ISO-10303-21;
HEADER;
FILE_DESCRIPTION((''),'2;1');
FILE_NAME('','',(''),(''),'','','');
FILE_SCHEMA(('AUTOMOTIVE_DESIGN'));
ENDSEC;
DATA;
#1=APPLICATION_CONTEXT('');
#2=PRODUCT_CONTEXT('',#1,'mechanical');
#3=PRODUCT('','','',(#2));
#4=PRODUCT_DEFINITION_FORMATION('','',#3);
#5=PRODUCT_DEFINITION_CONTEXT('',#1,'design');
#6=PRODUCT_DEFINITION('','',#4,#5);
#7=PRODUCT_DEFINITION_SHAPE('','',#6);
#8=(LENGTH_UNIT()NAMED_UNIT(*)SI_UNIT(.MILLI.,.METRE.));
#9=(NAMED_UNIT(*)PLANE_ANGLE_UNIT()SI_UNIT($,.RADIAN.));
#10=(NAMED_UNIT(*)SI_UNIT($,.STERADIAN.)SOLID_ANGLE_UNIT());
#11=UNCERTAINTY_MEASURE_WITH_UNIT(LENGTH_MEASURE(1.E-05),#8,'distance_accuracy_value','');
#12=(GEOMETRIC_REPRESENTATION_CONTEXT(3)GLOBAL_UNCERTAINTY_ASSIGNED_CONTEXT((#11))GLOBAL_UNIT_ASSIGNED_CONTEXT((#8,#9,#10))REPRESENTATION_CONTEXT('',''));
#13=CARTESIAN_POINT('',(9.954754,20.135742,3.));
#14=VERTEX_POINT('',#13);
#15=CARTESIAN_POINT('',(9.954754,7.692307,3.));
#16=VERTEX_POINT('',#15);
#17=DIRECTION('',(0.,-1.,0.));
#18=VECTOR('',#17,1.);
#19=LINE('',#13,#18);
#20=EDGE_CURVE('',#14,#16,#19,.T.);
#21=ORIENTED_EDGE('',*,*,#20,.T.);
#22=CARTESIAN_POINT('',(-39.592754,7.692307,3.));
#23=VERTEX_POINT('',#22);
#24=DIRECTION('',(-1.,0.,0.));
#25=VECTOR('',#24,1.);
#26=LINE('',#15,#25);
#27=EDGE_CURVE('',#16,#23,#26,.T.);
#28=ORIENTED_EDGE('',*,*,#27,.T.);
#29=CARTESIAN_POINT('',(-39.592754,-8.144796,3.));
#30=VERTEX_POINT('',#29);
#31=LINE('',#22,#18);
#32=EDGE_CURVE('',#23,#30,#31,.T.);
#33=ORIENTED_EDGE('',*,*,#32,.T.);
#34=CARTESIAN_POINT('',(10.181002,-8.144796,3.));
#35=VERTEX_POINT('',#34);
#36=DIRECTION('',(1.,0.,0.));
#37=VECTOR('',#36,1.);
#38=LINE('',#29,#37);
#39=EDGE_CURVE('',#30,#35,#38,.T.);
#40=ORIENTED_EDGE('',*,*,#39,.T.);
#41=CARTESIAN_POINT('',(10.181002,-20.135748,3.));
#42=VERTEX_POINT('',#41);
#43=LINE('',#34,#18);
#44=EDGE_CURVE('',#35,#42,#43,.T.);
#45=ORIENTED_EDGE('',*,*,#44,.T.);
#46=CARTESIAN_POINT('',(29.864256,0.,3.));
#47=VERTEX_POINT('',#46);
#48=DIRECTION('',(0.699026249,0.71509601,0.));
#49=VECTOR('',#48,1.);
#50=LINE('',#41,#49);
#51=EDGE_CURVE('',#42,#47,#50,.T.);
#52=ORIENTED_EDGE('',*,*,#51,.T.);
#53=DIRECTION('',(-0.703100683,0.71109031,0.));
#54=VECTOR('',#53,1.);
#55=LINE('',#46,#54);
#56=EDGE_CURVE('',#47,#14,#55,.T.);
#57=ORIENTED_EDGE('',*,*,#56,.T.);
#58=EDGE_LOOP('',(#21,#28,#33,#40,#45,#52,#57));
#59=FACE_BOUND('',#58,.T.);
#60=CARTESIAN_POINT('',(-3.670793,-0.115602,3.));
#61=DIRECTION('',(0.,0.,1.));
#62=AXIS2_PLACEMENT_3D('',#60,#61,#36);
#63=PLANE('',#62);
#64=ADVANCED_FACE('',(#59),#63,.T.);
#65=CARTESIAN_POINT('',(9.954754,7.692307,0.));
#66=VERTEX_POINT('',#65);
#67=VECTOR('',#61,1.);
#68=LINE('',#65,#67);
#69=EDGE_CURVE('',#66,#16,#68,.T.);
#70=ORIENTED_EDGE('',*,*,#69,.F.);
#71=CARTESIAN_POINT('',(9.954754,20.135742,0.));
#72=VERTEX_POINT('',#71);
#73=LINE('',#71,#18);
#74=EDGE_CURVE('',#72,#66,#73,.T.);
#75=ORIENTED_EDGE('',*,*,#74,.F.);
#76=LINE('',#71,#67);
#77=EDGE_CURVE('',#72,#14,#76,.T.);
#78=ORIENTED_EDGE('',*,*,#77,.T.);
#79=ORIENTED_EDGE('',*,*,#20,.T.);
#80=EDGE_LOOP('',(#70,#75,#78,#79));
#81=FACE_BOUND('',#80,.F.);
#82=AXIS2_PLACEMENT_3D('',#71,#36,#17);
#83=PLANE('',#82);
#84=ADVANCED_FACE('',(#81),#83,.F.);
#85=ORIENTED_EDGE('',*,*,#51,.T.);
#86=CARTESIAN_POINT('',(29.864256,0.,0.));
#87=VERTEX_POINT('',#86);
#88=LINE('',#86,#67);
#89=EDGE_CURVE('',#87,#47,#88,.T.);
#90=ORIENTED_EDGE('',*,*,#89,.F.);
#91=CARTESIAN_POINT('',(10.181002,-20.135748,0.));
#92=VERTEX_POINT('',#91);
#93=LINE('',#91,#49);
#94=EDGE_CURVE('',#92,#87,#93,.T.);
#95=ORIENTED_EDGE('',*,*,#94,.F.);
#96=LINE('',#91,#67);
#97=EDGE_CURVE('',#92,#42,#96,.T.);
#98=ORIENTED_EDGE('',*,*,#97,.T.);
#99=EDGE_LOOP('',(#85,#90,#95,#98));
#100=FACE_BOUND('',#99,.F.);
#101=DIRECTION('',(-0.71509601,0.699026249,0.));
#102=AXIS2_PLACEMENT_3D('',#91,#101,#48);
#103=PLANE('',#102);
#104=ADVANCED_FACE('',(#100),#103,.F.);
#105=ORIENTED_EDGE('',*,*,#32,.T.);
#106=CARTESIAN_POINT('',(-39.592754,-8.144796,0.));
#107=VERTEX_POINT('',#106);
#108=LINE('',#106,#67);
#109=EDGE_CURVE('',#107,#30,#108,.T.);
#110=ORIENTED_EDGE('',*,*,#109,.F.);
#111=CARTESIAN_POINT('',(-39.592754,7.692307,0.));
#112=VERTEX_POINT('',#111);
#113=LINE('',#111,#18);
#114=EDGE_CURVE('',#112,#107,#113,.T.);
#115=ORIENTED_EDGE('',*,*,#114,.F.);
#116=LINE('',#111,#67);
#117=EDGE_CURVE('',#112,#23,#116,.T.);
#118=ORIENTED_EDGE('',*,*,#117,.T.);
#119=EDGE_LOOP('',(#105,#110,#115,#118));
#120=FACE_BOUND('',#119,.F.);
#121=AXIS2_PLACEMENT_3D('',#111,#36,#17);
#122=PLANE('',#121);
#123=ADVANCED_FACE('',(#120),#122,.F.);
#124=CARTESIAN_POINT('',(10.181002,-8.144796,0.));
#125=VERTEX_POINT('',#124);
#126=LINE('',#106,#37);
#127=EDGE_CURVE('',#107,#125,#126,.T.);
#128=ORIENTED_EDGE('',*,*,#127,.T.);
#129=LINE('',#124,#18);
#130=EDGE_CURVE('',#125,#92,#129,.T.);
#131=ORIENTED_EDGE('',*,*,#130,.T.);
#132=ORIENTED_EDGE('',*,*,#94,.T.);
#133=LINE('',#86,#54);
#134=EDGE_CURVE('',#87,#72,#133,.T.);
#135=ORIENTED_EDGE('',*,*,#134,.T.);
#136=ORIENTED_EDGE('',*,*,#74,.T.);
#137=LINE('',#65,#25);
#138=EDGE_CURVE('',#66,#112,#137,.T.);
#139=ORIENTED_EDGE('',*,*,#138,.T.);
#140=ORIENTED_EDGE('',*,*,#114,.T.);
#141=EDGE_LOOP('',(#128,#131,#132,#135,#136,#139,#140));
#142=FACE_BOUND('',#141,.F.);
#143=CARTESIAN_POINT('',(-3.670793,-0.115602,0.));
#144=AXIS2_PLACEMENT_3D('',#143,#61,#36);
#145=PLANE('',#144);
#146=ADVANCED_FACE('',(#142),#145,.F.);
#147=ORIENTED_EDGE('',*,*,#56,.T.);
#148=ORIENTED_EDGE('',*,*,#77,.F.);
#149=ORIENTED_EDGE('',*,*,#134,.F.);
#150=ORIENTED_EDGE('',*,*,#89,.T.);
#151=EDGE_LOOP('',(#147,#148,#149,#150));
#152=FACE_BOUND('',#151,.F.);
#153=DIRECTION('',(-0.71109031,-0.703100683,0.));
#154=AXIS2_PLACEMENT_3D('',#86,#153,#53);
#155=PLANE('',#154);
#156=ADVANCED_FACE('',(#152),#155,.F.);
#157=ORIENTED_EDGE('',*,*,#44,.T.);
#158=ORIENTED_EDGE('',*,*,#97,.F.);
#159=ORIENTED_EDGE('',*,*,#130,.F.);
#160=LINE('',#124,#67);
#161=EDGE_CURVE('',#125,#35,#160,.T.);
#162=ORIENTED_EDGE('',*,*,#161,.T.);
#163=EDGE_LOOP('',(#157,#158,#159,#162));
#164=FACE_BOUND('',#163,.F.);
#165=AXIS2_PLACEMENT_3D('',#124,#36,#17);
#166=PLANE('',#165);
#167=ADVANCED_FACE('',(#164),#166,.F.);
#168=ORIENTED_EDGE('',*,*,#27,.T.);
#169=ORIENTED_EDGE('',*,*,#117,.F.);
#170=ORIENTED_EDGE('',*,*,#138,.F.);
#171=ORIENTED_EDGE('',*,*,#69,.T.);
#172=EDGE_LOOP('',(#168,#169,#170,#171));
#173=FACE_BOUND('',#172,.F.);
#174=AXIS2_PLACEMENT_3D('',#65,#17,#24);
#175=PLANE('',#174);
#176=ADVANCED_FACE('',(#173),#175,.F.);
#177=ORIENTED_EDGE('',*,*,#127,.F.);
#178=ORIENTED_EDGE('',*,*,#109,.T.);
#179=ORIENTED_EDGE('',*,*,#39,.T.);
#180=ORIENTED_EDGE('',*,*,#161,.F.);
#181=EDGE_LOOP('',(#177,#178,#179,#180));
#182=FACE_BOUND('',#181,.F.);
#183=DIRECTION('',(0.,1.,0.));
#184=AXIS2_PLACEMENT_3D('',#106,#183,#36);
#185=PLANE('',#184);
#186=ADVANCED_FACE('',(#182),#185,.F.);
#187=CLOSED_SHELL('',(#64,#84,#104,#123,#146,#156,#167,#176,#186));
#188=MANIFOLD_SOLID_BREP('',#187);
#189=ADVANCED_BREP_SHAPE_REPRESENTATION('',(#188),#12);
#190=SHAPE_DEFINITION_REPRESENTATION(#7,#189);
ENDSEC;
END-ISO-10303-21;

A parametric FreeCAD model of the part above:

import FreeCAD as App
import Part
import Sketcher

V = App.Vector
Q = App.Units.Quantity

doc = App.newDocument("Part")
body = doc.addObject("PartDesign::Body", "Body")

# Sketch on XY plane
sketch1 = body.newObject("Sketcher::SketchObject", "Sketch")
sketch1.AttachmentSupport = (doc.getObject("XY_Plane"), [""])
sketch1.MapMode = "FlatFace"
sketch1.addGeometry([
    Part.LineSegment(V(29.864256, 0, 0), V(9.954754, 20.135742, 0)),  # 0
    Part.LineSegment(V(9.954754, 20.135742, 0), V(9.954754, 7.692307, 0)),  # 1
    Part.LineSegment(V(9.954754, 7.692307, 0), V(-39.592754, 7.692307, 0)),  # 2
    Part.LineSegment(V(-39.592754, 7.692307, 0), V(-39.592754, -8.144796, 0)),  # 3
    Part.LineSegment(V(-39.592754, -8.144796, 0), V(10.181002, -8.144796, 0)),  # 4
    Part.LineSegment(V(10.181002, -8.144796, 0), V(10.181002, -20.135748, 0)),  # 5
    Part.LineSegment(V(10.181002, -20.135748, 0), V(29.864256, 0, 0)),  # 6
], False)
sketch1.addConstraint([
    Sketcher.Constraint("Coincident", 0, 2, 1, 1),
    Sketcher.Constraint("Coincident", 1, 2, 2, 1),
    Sketcher.Constraint("Coincident", 2, 2, 3, 1),
    Sketcher.Constraint("Coincident", 3, 2, 4, 1),
    Sketcher.Constraint("Coincident", 4, 2, 5, 1),
    Sketcher.Constraint("Coincident", 5, 2, 6, 1),
    Sketcher.Constraint("Coincident", 6, 2, 0, 1),
    Sketcher.Constraint("Vertical", 1),
    Sketcher.Constraint("Horizontal", 2),
    Sketcher.Constraint("Vertical", 3),
    Sketcher.Constraint("Horizontal", 4),
    Sketcher.Constraint("Vertical", 5),
    Sketcher.Constraint("PointOnObject", 6, 2, -1),
    Sketcher.Constraint("DistanceX", 2, 2, 2, 1, Q("49.547508 mm")),
    Sketcher.Constraint("DistanceX", 4, 1, 4, 2, Q("49.773756 mm")),
    Sketcher.Constraint("DistanceY", 1, 2, 1, 1, Q("12.443435 mm")),
    Sketcher.Constraint("DistanceY", 3, 2, 3, 1, Q("15.837103 mm")),
    Sketcher.Constraint("DistanceY", 5, 2, 5, 1, Q("11.990952 mm")),
    Sketcher.Constraint("DistanceX", 2, 2, 6, 2, Q("69.45701 mm")),
    Sketcher.Constraint("Distance", 0, Q("28.316715 mm")),
    Sketcher.Constraint("DistanceX", -1, 1, 0, 2, Q("9.954754 mm")),
])
pad1 = body.newObject("PartDesign::Pad", "Pad")
pad1.Profile = sketch1
pad1.Length = 3

doc.recompute()
